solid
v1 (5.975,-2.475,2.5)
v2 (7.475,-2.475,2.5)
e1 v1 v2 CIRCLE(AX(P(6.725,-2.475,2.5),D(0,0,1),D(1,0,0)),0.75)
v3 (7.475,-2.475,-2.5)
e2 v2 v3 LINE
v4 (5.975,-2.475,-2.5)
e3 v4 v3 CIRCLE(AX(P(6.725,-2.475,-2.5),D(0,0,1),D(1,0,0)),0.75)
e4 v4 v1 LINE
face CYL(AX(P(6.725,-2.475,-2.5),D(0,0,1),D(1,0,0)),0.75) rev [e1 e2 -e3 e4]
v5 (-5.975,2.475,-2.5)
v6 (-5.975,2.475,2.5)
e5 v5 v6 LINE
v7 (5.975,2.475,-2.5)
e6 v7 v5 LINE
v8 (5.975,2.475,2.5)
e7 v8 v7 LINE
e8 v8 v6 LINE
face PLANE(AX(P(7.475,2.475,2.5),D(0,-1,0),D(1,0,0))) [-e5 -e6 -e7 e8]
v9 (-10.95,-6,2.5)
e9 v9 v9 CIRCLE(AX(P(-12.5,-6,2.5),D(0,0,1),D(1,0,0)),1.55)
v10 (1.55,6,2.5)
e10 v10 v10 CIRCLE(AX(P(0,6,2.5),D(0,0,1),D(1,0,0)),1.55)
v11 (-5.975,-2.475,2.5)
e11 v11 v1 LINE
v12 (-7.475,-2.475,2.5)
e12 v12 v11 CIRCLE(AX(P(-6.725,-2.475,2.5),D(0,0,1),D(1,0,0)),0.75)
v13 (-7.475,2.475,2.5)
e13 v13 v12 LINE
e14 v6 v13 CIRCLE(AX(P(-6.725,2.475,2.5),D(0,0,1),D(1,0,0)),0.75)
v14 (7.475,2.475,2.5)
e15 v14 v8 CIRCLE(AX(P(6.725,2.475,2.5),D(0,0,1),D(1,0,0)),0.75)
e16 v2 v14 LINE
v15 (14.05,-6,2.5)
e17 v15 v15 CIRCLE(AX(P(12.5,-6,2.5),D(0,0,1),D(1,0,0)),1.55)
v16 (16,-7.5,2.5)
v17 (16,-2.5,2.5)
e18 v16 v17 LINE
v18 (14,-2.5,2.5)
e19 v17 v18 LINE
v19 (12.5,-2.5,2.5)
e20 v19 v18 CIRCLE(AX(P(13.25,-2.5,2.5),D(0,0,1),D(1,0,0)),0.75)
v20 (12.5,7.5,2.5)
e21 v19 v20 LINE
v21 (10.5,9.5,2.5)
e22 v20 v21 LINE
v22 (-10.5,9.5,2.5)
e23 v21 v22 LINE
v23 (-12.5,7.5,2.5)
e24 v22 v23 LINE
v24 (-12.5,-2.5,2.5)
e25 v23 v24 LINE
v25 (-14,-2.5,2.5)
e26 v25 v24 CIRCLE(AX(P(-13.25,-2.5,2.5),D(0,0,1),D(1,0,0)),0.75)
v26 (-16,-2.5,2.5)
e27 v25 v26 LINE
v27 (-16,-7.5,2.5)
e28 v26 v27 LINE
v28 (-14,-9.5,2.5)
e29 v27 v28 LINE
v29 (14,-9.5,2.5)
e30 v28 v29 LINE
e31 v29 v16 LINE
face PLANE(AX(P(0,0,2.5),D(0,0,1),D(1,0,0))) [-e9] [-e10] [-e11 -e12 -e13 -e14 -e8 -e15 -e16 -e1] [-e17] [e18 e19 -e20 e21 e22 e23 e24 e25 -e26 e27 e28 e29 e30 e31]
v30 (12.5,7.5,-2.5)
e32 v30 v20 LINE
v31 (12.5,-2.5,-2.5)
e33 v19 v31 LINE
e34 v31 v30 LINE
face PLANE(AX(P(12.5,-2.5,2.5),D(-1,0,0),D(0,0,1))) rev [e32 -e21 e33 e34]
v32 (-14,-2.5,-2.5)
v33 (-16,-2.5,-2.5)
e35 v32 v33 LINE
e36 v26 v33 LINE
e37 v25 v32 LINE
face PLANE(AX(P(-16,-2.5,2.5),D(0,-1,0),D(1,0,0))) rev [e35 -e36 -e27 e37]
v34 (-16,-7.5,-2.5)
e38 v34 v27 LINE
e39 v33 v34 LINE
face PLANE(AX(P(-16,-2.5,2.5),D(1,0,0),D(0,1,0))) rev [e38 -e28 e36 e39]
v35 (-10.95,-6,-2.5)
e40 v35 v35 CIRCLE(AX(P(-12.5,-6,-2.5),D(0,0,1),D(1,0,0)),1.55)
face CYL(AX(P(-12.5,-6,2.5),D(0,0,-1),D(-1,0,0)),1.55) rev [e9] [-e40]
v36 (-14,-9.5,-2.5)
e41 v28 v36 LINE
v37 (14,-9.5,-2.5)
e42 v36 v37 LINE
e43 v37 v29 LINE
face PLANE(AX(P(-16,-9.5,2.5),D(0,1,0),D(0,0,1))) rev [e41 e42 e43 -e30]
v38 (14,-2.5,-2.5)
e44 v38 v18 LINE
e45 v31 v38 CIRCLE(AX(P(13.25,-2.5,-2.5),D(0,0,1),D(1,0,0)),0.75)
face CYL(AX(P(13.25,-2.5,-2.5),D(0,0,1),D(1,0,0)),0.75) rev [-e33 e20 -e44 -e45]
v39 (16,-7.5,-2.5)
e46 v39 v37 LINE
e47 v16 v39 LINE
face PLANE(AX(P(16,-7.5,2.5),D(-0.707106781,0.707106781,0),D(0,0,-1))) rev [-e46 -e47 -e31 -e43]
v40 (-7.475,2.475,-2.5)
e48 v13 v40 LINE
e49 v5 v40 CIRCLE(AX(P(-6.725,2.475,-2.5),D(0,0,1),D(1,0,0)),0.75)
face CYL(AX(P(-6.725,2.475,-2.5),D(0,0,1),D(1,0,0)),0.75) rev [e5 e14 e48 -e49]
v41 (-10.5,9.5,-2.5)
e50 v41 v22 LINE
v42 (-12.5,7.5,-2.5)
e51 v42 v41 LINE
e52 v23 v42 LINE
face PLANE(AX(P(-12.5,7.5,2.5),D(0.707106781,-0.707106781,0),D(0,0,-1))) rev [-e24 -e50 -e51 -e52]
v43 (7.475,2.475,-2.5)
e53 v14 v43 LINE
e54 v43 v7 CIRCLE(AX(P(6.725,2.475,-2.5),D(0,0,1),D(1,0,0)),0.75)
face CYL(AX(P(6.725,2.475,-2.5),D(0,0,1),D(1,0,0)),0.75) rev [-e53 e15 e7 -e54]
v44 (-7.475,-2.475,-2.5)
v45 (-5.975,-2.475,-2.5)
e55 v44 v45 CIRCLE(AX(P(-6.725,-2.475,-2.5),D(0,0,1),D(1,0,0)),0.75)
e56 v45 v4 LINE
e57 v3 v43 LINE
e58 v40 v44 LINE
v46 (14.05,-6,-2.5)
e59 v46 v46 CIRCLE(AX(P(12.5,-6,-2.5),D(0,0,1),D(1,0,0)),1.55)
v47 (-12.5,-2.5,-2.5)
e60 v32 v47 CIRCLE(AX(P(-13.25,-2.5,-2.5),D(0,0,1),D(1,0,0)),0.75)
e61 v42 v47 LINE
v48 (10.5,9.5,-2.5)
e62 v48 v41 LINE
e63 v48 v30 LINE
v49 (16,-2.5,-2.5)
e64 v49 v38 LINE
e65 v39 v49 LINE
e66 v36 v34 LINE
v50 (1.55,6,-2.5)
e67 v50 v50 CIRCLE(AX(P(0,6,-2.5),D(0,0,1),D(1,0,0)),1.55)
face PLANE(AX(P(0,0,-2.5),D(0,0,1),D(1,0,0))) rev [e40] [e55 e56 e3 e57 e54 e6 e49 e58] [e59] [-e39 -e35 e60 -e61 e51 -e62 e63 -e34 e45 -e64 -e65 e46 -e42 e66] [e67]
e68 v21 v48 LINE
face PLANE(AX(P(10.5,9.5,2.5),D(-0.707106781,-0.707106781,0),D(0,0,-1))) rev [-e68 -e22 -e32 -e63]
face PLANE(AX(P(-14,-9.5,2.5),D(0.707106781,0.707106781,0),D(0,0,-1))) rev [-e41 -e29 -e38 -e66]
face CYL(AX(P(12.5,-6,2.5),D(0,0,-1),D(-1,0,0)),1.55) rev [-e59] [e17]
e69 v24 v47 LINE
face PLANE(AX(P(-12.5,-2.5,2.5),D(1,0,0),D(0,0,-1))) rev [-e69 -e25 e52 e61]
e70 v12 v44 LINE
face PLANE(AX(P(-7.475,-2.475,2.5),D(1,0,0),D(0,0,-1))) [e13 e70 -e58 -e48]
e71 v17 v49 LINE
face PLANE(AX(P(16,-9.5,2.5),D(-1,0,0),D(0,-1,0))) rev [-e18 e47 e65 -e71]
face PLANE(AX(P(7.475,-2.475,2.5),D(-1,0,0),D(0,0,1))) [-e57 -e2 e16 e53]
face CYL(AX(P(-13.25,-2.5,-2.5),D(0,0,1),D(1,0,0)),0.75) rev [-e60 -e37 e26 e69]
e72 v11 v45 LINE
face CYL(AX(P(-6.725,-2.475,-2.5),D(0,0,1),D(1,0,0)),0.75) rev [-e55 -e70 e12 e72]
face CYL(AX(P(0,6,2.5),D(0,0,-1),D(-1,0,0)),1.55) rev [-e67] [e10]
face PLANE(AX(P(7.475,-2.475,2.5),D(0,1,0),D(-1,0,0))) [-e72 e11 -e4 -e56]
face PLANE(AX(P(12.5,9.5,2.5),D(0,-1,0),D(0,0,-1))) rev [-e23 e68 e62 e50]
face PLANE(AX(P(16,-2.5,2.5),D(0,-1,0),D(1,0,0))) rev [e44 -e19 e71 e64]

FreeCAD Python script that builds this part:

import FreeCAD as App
import Part
import Sketcher
from FreeCAD import Vector


def edges_at(feature, points):
    """Names of the edges that pass closest to the given points."""
    edges = feature.Shape.Edges
    near = lambda p: min(range(len(edges)), key=lambda i: edges[i].distToShape(Part.Vertex(*p))[0])
    return sorted({f"Edge{near(p) + 1}" for p in points})


def add_polygon(sketch, points):
    """Adds a closed chain of lines whose ends are joined by coincident constraints."""
    first, n = sketch.GeometryCount, len(points)
    for a, b in zip(points, points[1:] + points[:1]):
        sketch.addGeometry(Part.LineSegment(App.Vector(*a, 0), App.Vector(*b, 0)), False)
    for i in range(n):
        sketch.addConstraint(Sketcher.Constraint("Coincident", first + i, 2, first + (i + 1) % n, 1))

doc = App.newDocument("Part")
body = doc.addObject("PartDesign::Body", "Body")

sketch1 = body.newObject("Sketcher::SketchObject", "Sketch")
sketch1.AttachmentSupport = (doc.getObject("XY_Plane"), [""])
sketch1.MapMode = "FlatFace"
add_polygon(sketch1, [(-16, -2.5), (-16, -9.5), (16, -9.5), (16, -2.5), (12.5, -2.5), (12.5, 9.5), (-12.5, 9.5), (-12.5, -2.5)])
sketch1.addGeometry(Part.Circle(Vector(-12.5, -6, 0), Vector(0, 0, 1), 1.6), False)
sketch1.addGeometry(Part.Circle(Vector(12.5, -6, 0), Vector(0, 0, 1), 1.6), False)
add_polygon(sketch1, [(7.5, -2.5), (-7.5, -2.5), (-7.5, 2.5), (7.5, 2.5)])
sketch1.addGeometry(Part.Circle(Vector(0, 6, 0), Vector(0, 0, 1), 1.6), False)
sketch1.addConstraint([
    Sketcher.Constraint("Vertical", 0),
    Sketcher.Constraint("Horizontal", 1),
    Sketcher.Constraint("Vertical", 2),
    Sketcher.Constraint("Horizontal", 3),
    Sketcher.Constraint("Vertical", 4),
    Sketcher.Constraint("Horizontal", 5),
    Sketcher.Constraint("Vertical", 6),
    Sketcher.Constraint("Horizontal", 7),
    Sketcher.Constraint("Horizontal", 10),
    Sketcher.Constraint("Vertical", 11),
    Sketcher.Constraint("Horizontal", 12),
    Sketcher.Constraint("Vertical", 13),
    Sketcher.Constraint("Equal", 8, 9),
    Sketcher.Constraint("Equal", 9, 14),
    Sketcher.Constraint("Symmetric", 10, 2, 12, 2, -1, 1),
    Sketcher.Constraint("Symmetric", 8, 3, 9, 3, -2),
    Sketcher.Constraint("Symmetric", 3, 2, 6, 2, -2),
    Sketcher.Constraint("PointOnObject", 14, 3, -2),
    Sketcher.Constraint("Vertical", 9, 3, 3, 2),
    Sketcher.Constraint("Equal", 3, 7),
    Sketcher.Constraint("Diameter", 8, 3.1),
    Sketcher.Constraint("DistanceX", 1, 1, 1, 2, 32.0),
    Sketcher.Constraint("DistanceX", 5, 2, 5, 1, 25.0),
    Sketcher.Constraint("DistanceY", 0, 2, 0, 1, 7.0),
    Sketcher.Constraint("DistanceY", 4, 1, 4, 2, 12.0),
    Sketcher.Constraint("DistanceY", 8, 3, -1, 1, 6.0),
    Sketcher.Constraint("DistanceY", -1, 1, 14, 3, 6.0),
    Sketcher.Constraint("DistanceX", 10, 2, 10, 1, 14.95),
    Sketcher.Constraint("DistanceY", 11, 1, 11, 2, 4.95),
    Sketcher.Constraint("DistanceY", 0, 2, -1, 1, 9.5),
])
pad1 = body.newObject("PartDesign::Pad", "Pad")
pad1.Profile = sketch1
pad1.Length = 5
pad1.Midplane = True

sketch2 = body.newObject("Sketcher::SketchObject", "Sketch001")
sketch2.AttachmentSupport = (doc.getObject("XY_Plane"), [""])
sketch2.MapMode = "FlatFace"
sketch2.AttachmentOffset = App.Placement(Vector(0, 0, 2.5), App.Rotation())
sketch2.addGeometry([
    Part.Circle(Vector(-13.2, -2.5, 0), Vector(0, 0, 1), 0.8),
    Part.Circle(Vector(-6.7, -2.5, 0), Vector(0, 0, 1), 0.8),
    Part.Circle(Vector(-6.7, 2.5, 0), Vector(0, 0, 1), 0.8),
    Part.Circle(Vector(6.7, 2.5, 0), Vector(0, 0, 1), 0.8),
    Part.Circle(Vector(6.7, -2.5, 0), Vector(0, 0, 1), 0.8),
    Part.Circle(Vector(13.2, -2.5, 0), Vector(0, 0, 1), 0.8),
], False)
sketch2.addConstraint([
    Sketcher.Constraint("Equal", 0, 1),
    Sketcher.Constraint("Equal", 1, 2),
    Sketcher.Constraint("Equal", 2, 3),
    Sketcher.Constraint("Equal", 3, 4),
    Sketcher.Constraint("Equal", 4, 5),
    Sketcher.Constraint("Symmetric", 1, 3, 3, 3, -1, 1),
    Sketcher.Constraint("Symmetric", 2, 3, 4, 3, -1, 1),
    Sketcher.Constraint("Symmetric", 2, 3, 3, 3, -2),
    Sketcher.Constraint("Symmetric", 0, 3, 5, 3, -2),
    Sketcher.Constraint("Diameter", 0, 1.5),
    Sketcher.Constraint("DistanceY", 0, 3, -1, 1, 2.5),
    Sketcher.Constraint("DistanceX", 0, 3, 5, 3, 26.5),
    Sketcher.Constraint("DistanceY", 1, 3, 2, 3, 4.95),
    Sketcher.Constraint("DistanceX", 2, 3, 3, 3, 13.45),
])
pocket1 = body.newObject("PartDesign::Pocket", "Pocket")
pocket1.Profile = sketch2
pocket1.Type = "ThroughAll"
doc.recompute()

chamfer = body.newObject("PartDesign::Chamfer", "Chamfer")
chamfer.Base = (pocket1, edges_at(pocket1, [
    (-16, -9.5, 0),
    (-12.5, 9.5, 0),
    (12.5, 9.5, 0),
    (16, -9.5, 0),
]))
chamfer.Size = 2

doc.recompute()
